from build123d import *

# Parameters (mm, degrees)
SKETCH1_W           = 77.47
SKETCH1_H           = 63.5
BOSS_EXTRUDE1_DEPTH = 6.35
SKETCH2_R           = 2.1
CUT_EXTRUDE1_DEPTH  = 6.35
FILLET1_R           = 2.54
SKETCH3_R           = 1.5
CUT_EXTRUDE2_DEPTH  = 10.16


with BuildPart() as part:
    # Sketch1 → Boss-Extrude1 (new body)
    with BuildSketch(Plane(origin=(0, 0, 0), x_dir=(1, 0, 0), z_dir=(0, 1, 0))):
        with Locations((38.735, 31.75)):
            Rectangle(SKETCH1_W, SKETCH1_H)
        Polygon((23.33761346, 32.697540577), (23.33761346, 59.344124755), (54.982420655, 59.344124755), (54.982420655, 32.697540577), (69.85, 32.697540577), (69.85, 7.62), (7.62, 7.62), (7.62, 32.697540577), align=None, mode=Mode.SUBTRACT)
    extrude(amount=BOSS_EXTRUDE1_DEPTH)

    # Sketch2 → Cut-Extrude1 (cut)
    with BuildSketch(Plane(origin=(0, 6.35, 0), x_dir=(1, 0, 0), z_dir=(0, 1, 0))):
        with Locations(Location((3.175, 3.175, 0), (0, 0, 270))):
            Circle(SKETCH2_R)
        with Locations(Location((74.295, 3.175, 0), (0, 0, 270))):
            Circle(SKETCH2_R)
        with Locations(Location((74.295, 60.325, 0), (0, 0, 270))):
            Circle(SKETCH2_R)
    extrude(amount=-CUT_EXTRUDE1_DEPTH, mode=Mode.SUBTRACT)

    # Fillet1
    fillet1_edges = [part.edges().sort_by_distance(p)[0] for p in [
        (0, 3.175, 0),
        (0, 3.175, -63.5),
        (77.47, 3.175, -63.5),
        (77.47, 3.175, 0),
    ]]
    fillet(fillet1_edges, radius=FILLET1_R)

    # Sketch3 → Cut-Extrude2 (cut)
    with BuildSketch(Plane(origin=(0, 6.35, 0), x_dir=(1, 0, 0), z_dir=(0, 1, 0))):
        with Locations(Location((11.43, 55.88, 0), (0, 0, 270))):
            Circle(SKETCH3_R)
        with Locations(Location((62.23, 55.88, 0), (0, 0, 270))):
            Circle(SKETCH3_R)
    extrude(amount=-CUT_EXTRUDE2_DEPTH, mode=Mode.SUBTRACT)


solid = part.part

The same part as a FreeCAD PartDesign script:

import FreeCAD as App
import Part
import Sketcher
from FreeCAD import Vector
Q = App.Units.Quantity


def edges_at(feature, points):
    """Names of the edges that pass closest to the given points."""
    edges = feature.Shape.Edges
    near = lambda p: min(range(len(edges)), key=lambda i: edges[i].distToShape(Part.Vertex(*p))[0])
    return sorted({f"Edge{near(p) + 1}" for p in points})

doc = App.newDocument("Part")
body = doc.addObject("PartDesign::Body", "Body")

# Sketch on XZ plane
sketch1 = doc.addObject("Sketcher::SketchObject", "Sketch")
body.addObject(sketch1)
sketch1.AttachmentSupport = (doc.XZ_Plane, [""])
sketch1.MapMode = "FlatFace"
sketch1.addGeometry([
    Part.LineSegment(Vector(0, -64, 0), Vector(0, 0, 0)),  # 0
    Part.LineSegment(Vector(0, 0, 0), Vector(77, 0, 0)),  # 1
    Part.LineSegment(Vector(77, 0, 0), Vector(77, -64, 0)),  # 2
    Part.LineSegment(Vector(77, -64, 0), Vector(0, -64, 0)),  # 3
    Part.LineSegment(Vector(8, -33, 0), Vector(23, -33, 0)),  # 4
    Part.LineSegment(Vector(23, -33, 0), Vector(23, -59, 0)),  # 5
    Part.LineSegment(Vector(23, -59, 0), Vector(55, -59, 0)),  # 6
    Part.LineSegment(Vector(55, -59, 0), Vector(55, -33, 0)),  # 7
    Part.LineSegment(Vector(55, -33, 0), Vector(70, -33, 0)),  # 8
    Part.LineSegment(Vector(70, -33, 0), Vector(70, -8, 0)),  # 9
    Part.LineSegment(Vector(70, -8, 0), Vector(8, -8, 0)),  # 10
    Part.LineSegment(Vector(8, -8, 0), Vector(8, -33, 0)),  # 11
], False)
sketch1.addConstraint([
    Sketcher.Constraint("Coincident", 0, 2, 1, 1),
    Sketcher.Constraint("Coincident", 1, 2, 2, 1),
    Sketcher.Constraint("Coincident", 2, 2, 3, 1),
    Sketcher.Constraint("Coincident", 3, 2, 0, 1),
    Sketcher.Constraint("Coincident", 4, 2, 5, 1),
    Sketcher.Constraint("Coincident", 5, 2, 6, 1),
    Sketcher.Constraint("Coincident", 6, 2, 7, 1),
    Sketcher.Constraint("Coincident", 7, 2, 8, 1),
    Sketcher.Constraint("Coincident", 8, 2, 9, 1),
    Sketcher.Constraint("Coincident", 9, 2, 10, 1),
    Sketcher.Constraint("Coincident", 10, 2, 11, 1),
    Sketcher.Constraint("Coincident", 11, 2, 4, 1),
    Sketcher.Constraint("Vertical", 0),
    Sketcher.Constraint("Horizontal", 1),
    Sketcher.Constraint("Vertical", 2),
    Sketcher.Constraint("Horizontal", 3),
    Sketcher.Constraint("Horizontal", 4),
    Sketcher.Constraint("Vertical", 5),
    Sketcher.Constraint("Horizontal", 6),
    Sketcher.Constraint("Vertical", 7),
    Sketcher.Constraint("Horizontal", 8),
    Sketcher.Constraint("Vertical", 9),
    Sketcher.Constraint("Horizontal", 10),
    Sketcher.Constraint("Vertical", 11),
    Sketcher.Constraint("Coincident", 0, 2, -1, 1),
    Sketcher.Constraint("Horizontal", 4, 2, 7, 2),
    Sketcher.Constraint("DistanceY", 0, 1, 0, 2, Q("2.5 in")),
    Sketcher.Constraint("DistanceX", 1, 1, 1, 2, Q("3.05 in")),
    Sketcher.Constraint("DistanceX", 10, 2, 10, 1, Q("2.45 in")),
    Sketcher.Constraint("DistanceY", 9, 2, -1, 1, Q("0.3 in")),
    Sketcher.Constraint("DistanceX", -1, 1, 10, 2, Q("0.3 in")),
    Sketcher.Constraint("DistanceX", 8, 1, 8, 2, Q("14.867579 mm")),
    Sketcher.Constraint("DistanceY", 9, 1, 9, 2, Q("25.077541 mm")),
    Sketcher.Constraint("DistanceX", 4, 1, 4, 2, Q("15.717613 mm")),
    Sketcher.Constraint("DistanceY", 5, 2, 5, 1, Q("26.646584 mm")),
])
pad1 = doc.addObject("PartDesign::Pad", "Pad")
body.addObject(pad1)
pad1.Profile = sketch1
pad1.Length = Q("0.25 in")
pad1.Reversed = True

# Sketch on XZ plane
sketch2 = doc.addObject("Sketcher::SketchObject", "Sketch001")
body.addObject(sketch2)
sketch2.AttachmentSupport = (doc.XZ_Plane, [""])
sketch2.MapMode = "FlatFace"
sketch2.AttachmentOffset = App.Placement(Vector(0, 0, -0.25 * 25.4), App.Rotation())
sketch2.addGeometry([
    Part.Circle(Vector(3.2, -3.2, 0), Vector(0, 0, 1), 2.1),
    Part.Circle(Vector(74.3, -3.2, 0), Vector(0, 0, 1), 2.1),
    Part.Circle(Vector(74.3, -60.3, 0), Vector(0, 0, 1), 2.1),
], False)
sketch2.addConstraint([
    Sketcher.Constraint("Equal", 0, 1),
    Sketcher.Constraint("Equal", 1, 2),
    Sketcher.Constraint("Horizontal", 0, 3, 1, 3),
    Sketcher.Constraint("Vertical", 1, 3, 2, 3),
    Sketcher.Constraint("DistanceX", 0, 3, 1, 3, Q("2.8 in")),
    Sketcher.Constraint("Diameter", 0, Q("4.2 mm")),
    Sketcher.Constraint("DistanceY", 2, 3, 1, 3, Q("2.25 in")),
    Sketcher.Constraint("DistanceX", -1, 1, 0, 3, Q("0.125 in")),
    Sketcher.Constraint("DistanceY", 0, 3, -1, 1, Q("0.125 in")),
])
pocket1 = doc.addObject("PartDesign::Pocket", "Pocket")
body.addObject(pocket1)
pocket1.Profile = sketch2
pocket1.Length = Q("0.25 in")
pocket1.Reversed = True
doc.recompute()

fillet = doc.addObject("PartDesign::Fillet", "Fillet")
body.addObject(fillet)
fillet.Base = (pocket1, edges_at(pocket1, [
    (0, 3.175, 0),
    (0, 3.175, -63.5),
    (77.47, 3.175, -63.5),
    (77.47, 3.175, 0),
]))
fillet.Radius = Q("0.1 in")

# Sketch on XZ plane
sketch3 = doc.addObject("Sketcher::SketchObject", "Sketch002")
body.addObject(sketch3)
sketch3.AttachmentSupport = (doc.XZ_Plane, [""])
sketch3.MapMode = "FlatFace"
sketch3.AttachmentOffset = App.Placement(Vector(0, 0, -0.25 * 25.4), App.Rotation())
sketch3.addGeometry([
    Part.Circle(Vector(11.4, -55.9, 0), Vector(0, 0, 1), 1.5),
    Part.Circle(Vector(62.2, -55.9, 0), Vector(0, 0, 1), 1.5),
], False)
sketch3.addConstraint([
    Sketcher.Constraint("Equal", 0, 1),
    Sketcher.Constraint("Horizontal", 0, 3, 1, 3),
    Sketcher.Constraint("DistanceX", 0, 3, 1, 3, Q("2 in")),
    Sketcher.Constraint("DistanceY", 0, 3, -1, 1, Q("2.2 in")),
    Sketcher.Constraint("Diameter", 0, Q("3 mm")),
    Sketcher.Constraint("DistanceX", -1, 1, 0, 3, Q("0.45 in")),
])
pocket2 = doc.addObject("PartDesign::Pocket", "Pocket001")
body.addObject(pocket2)
pocket2.Profile = sketch3
pocket2.Length = Q("0.4 in")
pocket2.Reversed = True

doc.recompute()
